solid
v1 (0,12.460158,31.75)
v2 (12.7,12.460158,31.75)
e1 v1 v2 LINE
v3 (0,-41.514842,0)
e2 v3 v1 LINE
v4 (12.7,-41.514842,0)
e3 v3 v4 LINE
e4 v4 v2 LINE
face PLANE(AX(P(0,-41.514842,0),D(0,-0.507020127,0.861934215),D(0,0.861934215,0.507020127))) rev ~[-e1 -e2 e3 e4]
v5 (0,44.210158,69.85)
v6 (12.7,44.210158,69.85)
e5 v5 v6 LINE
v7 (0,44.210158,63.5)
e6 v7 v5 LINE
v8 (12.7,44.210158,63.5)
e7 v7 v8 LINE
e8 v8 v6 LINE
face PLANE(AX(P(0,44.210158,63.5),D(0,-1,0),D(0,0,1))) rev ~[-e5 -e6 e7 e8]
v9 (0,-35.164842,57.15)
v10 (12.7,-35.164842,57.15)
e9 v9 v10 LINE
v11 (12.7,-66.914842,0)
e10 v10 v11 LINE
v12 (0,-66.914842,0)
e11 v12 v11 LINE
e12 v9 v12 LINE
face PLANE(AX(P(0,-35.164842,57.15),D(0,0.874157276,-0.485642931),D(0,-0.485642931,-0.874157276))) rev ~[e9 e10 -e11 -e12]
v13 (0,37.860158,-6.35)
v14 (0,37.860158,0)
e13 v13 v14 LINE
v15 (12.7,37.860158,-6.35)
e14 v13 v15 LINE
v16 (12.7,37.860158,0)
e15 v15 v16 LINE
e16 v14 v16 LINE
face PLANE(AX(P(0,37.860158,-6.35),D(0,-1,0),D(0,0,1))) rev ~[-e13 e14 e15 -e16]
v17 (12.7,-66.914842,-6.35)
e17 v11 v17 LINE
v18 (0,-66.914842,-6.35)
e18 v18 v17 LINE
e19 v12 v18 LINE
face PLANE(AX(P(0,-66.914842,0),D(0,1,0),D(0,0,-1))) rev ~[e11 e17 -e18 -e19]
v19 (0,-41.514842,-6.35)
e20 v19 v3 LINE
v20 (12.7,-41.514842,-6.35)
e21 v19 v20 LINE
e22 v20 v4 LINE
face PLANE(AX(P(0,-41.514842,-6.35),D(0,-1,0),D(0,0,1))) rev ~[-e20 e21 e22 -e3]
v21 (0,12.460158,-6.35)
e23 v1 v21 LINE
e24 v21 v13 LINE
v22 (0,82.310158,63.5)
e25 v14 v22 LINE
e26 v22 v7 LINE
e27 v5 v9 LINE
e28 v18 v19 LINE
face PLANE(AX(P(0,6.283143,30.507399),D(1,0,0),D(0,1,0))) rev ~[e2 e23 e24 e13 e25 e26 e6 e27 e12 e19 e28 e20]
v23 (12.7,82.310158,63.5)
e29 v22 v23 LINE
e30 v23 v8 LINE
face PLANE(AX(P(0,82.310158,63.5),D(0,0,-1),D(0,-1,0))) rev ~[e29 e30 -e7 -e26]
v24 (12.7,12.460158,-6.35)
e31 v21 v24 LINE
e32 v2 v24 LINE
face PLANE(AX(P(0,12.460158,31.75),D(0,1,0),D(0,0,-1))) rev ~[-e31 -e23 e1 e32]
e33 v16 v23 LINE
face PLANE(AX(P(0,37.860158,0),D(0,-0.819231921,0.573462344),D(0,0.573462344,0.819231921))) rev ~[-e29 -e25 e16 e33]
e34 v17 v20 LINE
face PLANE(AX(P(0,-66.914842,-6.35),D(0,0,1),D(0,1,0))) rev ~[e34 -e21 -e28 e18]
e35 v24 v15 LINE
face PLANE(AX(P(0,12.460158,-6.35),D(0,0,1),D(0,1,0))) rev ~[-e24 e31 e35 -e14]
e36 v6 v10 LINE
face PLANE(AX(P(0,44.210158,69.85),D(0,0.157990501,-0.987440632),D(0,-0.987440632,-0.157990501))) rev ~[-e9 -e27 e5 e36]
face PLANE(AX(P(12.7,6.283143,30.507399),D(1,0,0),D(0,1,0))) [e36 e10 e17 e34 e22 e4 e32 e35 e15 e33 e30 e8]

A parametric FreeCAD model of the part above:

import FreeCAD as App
import Part
import Sketcher

V = App.Vector
Q = App.Units.Quantity


def add_polygon(sketch, points):
    """Adds a closed chain of lines whose ends are joined by coincident constraints."""
    first, n = sketch.GeometryCount, len(points)
    for a, b in zip(points, points[1:] + points[:1]):
        sketch.addGeometry(Part.LineSegment(App.Vector(*a, 0), App.Vector(*b, 0)), False)
    for i in range(n):
        sketch.addConstraint(Sketcher.Constraint("Coincident", first + i, 2, first + (i + 1) % n, 1))

doc = App.newDocument("Part")
body = doc.addObject("PartDesign::Body", "Body")

# Sketch on YZ plane
sketch1 = doc.addObject("Sketcher::SketchObject", "Sketch")
body.addObject(sketch1)
sketch1.AttachmentSupport = (doc.YZ_Plane, [""])
sketch1.MapMode = "FlatFace"
add_polygon(sketch1, [(-66.914842, 0), (-66.914842, -6.35), (-41.514842, -6.35), (-41.514842, 0), (12.460158, 31.75), (12.460158, -6.35), (37.860158, -6.35), (37.860158, 0), (82.310158, 63.5), (44.210158, 63.5), (44.210158, 69.85), (-35.164842, 57.15)])  # lines 0-11
sketch1.addConstraint([
    Sketcher.Constraint("Vertical", 0),
    Sketcher.Constraint("Horizontal", 1),
    Sketcher.Constraint("Vertical", 2),
    Sketcher.Constraint("Vertical", 4),
    Sketcher.Constraint("Horizontal", 5),
    Sketcher.Constraint("Vertical", 6),
    Sketcher.Constraint("Horizontal", 8),
    Sketcher.Constraint("Vertical", 9),
    Sketcher.Constraint("PointOnObject", 2, 2, -1),
    Sketcher.Constraint("PointOnObject", 6, 2, -1),
    Sketcher.Constraint("PointOnObject", 11, 2, -1),
    Sketcher.Constraint("Horizontal", 1, 2, 4, 2),
    Sketcher.Constraint("Equal", 1, 5),
    Sketcher.Constraint("Equal", 8, 4),
    Sketcher.Constraint("Equal", 6, 9),
    Sketcher.Constraint("DistanceX", 1, 1, 1, 2, Q("1 in")),
    Sketcher.Constraint("DistanceX", 8, 2, 8, 1, Q("1.5 in")),
    Sketcher.Constraint("DistanceY", 5, 2, 9, 2, Q("3 in")),
    Sketcher.Constraint("DistanceY", 3, 2, 10, 2, Q("1 in")),
    Sketcher.Constraint("DistanceY", 0, 2, 0, 1, Q("0.25 in")),
    Sketcher.Constraint("DistanceX", 3, 2, 7, 2, Q("2.75 in")),
    Sketcher.Constraint("DistanceX", 2, 2, 10, 2, Q("0.25 in")),
    Sketcher.Constraint("DistanceX", 2, 2, 3, 2, Q("2.125 in")),
    Sketcher.Constraint("DistanceX", 0, 2, -1, 1, 66.914842),
])
pad1 = doc.addObject("PartDesign::Pad", "Pad")
body.addObject(pad1)
pad1.Profile = sketch1
pad1.Length = Q("0.5 in")

doc.recompute()
